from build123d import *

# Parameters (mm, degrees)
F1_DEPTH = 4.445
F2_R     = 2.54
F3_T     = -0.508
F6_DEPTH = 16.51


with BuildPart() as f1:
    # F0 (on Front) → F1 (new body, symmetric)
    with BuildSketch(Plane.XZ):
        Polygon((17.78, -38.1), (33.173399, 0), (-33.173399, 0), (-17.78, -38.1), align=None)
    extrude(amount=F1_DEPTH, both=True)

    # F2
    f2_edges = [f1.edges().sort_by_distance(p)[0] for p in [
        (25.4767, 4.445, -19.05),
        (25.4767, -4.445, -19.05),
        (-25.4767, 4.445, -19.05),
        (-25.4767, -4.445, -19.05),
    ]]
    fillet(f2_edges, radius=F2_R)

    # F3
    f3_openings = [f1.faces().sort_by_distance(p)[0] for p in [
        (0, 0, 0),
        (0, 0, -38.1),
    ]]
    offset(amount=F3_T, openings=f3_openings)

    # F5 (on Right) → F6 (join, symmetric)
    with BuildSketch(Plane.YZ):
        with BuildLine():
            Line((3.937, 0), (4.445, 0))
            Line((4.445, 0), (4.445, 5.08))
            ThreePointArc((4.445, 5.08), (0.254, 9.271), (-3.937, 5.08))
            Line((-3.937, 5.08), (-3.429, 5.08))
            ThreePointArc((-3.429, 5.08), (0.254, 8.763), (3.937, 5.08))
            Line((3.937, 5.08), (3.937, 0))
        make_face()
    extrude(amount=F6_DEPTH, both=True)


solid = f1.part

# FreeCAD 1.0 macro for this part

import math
import FreeCAD as App
import Part
import Sketcher
Q = App.Units.Quantity


def edges_at(feature, points):
    """Names of the edges that pass closest to the given points."""
    edges = feature.Shape.Edges
    near = lambda p: min(range(len(edges)), key=lambda i: edges[i].distToShape(Part.Vertex(*p))[0])
    return sorted({f"Edge{near(p) + 1}" for p in points})


def faces_at(feature, points):
    """Names of the faces that lie closest to the given points."""
    faces = feature.Shape.Faces
    near = lambda p: min(range(len(faces)), key=lambda i: faces[i].distToShape(Part.Vertex(*p))[0])
    return sorted({f"Face{near(p) + 1}" for p in points})

doc = App.newDocument("Part")
body = doc.addObject("PartDesign::Body", "Body")

# Sketch on XZ plane
sketch1 = doc.addObject("Sketcher::SketchObject", "Sketch")
body.addObject(sketch1)
sketch1.AttachmentSupport = (doc.XZ_Plane, [""])
sketch1.MapMode = "FlatFace"
sketch1.addGeometry([
    Part.LineSegment(App.Vector(17.78, -38.1, 0), App.Vector(33.173399, 0, 0)),
    Part.LineSegment(App.Vector(33.173399, 0, 0), App.Vector(-33.173399, 0, 0)),
    Part.LineSegment(App.Vector(-33.173399, 0, 0), App.Vector(-17.78, -38.1, 0)),
    Part.LineSegment(App.Vector(-17.78, -38.1, 0), App.Vector(17.78, -38.1, 0)),
], False)
sketch1.addConstraint([
    Sketcher.Constraint("Coincident", 0, 2, 1, 1),
    Sketcher.Constraint("Coincident", 1, 2, 2, 1),
    Sketcher.Constraint("Coincident", 2, 2, 3, 1),
    Sketcher.Constraint("Coincident", 3, 2, 0, 1),
    Sketcher.Constraint("Horizontal", 1),
    Sketcher.Constraint("Horizontal", 3),
    Sketcher.Constraint("Symmetric", 0, 2, 1, 2, -1, 1),
    Sketcher.Constraint("Equal", 0, 2),
    Sketcher.Constraint("DistanceX", 3, 1, 3, 2, Q("1.4 in")),
    Sketcher.Constraint("Angle", 0, Q("68 deg")),
    Sketcher.Constraint("DistanceY", 2, 2, -1, 1, Q("1.5 in")),
])
pad1 = doc.addObject("PartDesign::Pad", "Pad")
body.addObject(pad1)
pad1.Profile = sketch1
pad1.Length = Q("0.35 in")
pad1.Midplane = True
doc.recompute()

fillet = doc.addObject("PartDesign::Fillet", "Fillet")
body.addObject(fillet)
fillet.Base = (pad1, edges_at(pad1, [
    (25.477, 4.445, -19.05),
    (25.477, -4.445, -19.05),
    (-25.477, 4.445, -19.05),
    (-25.477, -4.445, -19.05),
]))
fillet.Radius = Q("0.1 in")
doc.recompute()

thickness = doc.addObject("PartDesign::Thickness", "Thickness")
body.addObject(thickness)
thickness.Base = (fillet, faces_at(fillet, [(0, 0, 0), (0, 0, -38.1)]))
thickness.Value = Q("0.02 in")
thickness.Reversed = True
thickness.Join = "Arc"

# Sketch on YZ plane
sketch2 = doc.addObject("Sketcher::SketchObject", "Sketch001")
body.addObject(sketch2)
sketch2.AttachmentSupport = (doc.YZ_Plane, [""])
sketch2.MapMode = "FlatFace"
sketch2.addGeometry([
    Part.LineSegment(App.Vector(3.937, 0, 0), App.Vector(4.445, 0, 0)),  # 0
    Part.LineSegment(App.Vector(4.445, 0, 0), App.Vector(4.445, 5.08, 0)),  # 1
    Part.ArcOfCircle(Part.Circle(App.Vector(0.254, 5.08, 0), App.Vector(0, 0, 1), 4.191), math.radians(0), math.radians(180)),  # 2
    Part.LineSegment(App.Vector(-3.937, 5.08, 0), App.Vector(-3.429, 5.08, 0)),  # 3
    Part.ArcOfCircle(Part.Circle(App.Vector(0.254, 5.08, 0), App.Vector(0, 0, 1), 3.683), math.radians(0), math.radians(180)),  # 4
    Part.LineSegment(App.Vector(3.937, 5.08, 0), App.Vector(3.937, 0, 0)),  # 5
], False)
sketch2.addConstraint([
    Sketcher.Constraint("Coincident", 0, 2, 1, 1),
    Sketcher.Constraint("Tangent", 1, 2, 2, 1),
    Sketcher.Constraint("Coincident", 2, 2, 3, 1),
    Sketcher.Constraint("Coincident", 3, 2, 4, 2),
    Sketcher.Constraint("Tangent", 4, 1, 5, 1),
    Sketcher.Constraint("Coincident", 5, 2, 0, 1),
    Sketcher.Constraint("Horizontal", 0),
    Sketcher.Constraint("Vertical", 1),
    Sketcher.Constraint("Horizontal", 3),
    Sketcher.Constraint("Vertical", 5),
    Sketcher.Constraint("Coincident", 4, 3, 2, 3),
    Sketcher.Constraint("Symmetric", 2, 2, 4, 1, -2),
    Sketcher.Constraint("PointOnObject", 0, 2, -1),
    Sketcher.Constraint("DistanceY", 1, 1, 1, 2, Q("0.2 in")),
    Sketcher.Constraint("Radius", 2, Q("0.165 in")),
    Sketcher.Constraint("Radius", 4, Q("0.145 in")),
])
pad2 = doc.addObject("PartDesign::Pad", "Pad001")
body.addObject(pad2)
pad2.Profile = sketch2
pad2.Length = Q("1.3 in")
pad2.Midplane = True

doc.recompute()
